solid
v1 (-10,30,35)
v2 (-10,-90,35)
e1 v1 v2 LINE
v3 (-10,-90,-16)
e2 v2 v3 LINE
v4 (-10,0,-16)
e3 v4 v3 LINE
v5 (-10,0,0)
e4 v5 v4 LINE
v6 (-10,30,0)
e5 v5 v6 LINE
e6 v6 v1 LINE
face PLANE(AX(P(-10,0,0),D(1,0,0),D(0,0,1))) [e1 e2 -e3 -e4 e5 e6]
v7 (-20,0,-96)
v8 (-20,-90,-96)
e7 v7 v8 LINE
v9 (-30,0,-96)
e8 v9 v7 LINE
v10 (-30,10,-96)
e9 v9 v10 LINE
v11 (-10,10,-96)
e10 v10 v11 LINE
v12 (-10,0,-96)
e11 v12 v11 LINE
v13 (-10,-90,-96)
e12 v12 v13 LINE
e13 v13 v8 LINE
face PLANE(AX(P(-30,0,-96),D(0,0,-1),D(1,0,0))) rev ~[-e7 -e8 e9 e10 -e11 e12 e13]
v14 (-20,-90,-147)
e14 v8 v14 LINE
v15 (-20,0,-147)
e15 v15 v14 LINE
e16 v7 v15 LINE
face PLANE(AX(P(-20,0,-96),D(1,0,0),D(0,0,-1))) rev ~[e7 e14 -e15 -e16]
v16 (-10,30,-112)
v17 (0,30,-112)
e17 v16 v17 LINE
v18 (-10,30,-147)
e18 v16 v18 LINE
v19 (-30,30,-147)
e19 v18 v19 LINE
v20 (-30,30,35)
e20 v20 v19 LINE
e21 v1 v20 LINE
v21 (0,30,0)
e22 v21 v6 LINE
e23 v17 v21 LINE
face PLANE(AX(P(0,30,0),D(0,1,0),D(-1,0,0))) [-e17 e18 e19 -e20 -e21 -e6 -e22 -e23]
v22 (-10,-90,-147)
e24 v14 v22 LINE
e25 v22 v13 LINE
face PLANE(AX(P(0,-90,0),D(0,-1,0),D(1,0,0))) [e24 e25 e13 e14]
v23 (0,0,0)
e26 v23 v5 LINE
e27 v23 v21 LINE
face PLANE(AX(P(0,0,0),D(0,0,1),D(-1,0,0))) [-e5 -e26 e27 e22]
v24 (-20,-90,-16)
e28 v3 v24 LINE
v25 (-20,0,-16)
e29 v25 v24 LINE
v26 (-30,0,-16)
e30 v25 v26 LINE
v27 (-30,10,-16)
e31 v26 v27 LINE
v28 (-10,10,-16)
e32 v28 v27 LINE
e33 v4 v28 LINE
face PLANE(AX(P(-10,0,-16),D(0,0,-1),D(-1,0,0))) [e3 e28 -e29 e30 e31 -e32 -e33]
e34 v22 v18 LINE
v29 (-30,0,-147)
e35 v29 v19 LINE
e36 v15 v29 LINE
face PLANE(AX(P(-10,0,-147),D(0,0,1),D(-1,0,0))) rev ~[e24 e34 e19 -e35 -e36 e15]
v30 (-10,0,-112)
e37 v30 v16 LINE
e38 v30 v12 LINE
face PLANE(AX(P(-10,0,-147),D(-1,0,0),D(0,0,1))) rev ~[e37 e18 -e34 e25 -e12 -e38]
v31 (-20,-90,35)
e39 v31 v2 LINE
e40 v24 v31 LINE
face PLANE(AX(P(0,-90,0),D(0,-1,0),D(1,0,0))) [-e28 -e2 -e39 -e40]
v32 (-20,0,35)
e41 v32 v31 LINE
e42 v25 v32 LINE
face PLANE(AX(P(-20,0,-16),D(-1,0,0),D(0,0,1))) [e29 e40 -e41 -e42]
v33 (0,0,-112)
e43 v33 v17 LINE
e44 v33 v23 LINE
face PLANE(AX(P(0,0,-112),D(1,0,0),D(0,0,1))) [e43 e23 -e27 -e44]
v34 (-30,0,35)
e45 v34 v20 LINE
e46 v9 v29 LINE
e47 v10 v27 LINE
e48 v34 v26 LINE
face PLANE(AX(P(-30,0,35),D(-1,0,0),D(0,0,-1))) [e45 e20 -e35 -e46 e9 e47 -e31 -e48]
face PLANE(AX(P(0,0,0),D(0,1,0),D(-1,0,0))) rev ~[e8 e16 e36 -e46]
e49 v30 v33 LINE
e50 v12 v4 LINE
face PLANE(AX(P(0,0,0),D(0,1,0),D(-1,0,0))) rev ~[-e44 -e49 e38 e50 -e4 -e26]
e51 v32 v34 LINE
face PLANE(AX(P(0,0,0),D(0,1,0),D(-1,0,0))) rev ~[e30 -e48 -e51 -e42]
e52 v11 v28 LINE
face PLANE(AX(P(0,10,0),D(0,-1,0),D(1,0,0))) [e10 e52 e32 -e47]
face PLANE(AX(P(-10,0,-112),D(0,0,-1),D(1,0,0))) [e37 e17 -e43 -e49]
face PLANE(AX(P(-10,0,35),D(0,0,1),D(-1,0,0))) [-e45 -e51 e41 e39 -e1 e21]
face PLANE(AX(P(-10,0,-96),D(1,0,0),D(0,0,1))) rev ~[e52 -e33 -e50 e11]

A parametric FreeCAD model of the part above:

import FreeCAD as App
import Part
import Sketcher

V = App.Vector
Q = App.Units.Quantity

doc = App.newDocument("Part")
params = doc.addObject("Spreadsheet::Sheet", "Params")
for row, (alias, value) in enumerate([
    ("sketch1_width", "10 mm"),
    ("sketch1_width2", "20 mm"),
    ("sketch1_height", "112 mm"),
    ("sketch1_height2", "35 mm"),
    ("pad1_length", "30 mm"),
    ("sketch2_width", "20 mm"),
    ("sketch2_height", "80 mm"),
    ("pocket1_length", "10 mm"),
    ("sketch3_width", "10 mm"),
    ("sketch3_height", "51 mm"),
    ("pad2_length", "90 mm"),
], start=1):
    params.set(f"A{row}", alias)
    params.set(f"B{row}", "=" + value)
    params.setAlias(f"B{row}", alias)

body = doc.addObject("PartDesign::Body", "Body")

# Sketch on XZ plane
sketch1 = body.newObject("Sketcher::SketchObject", "Sketch")
sketch1.AttachmentSupport = (doc.getObject("XZ_Plane"), [""])
sketch1.MapMode = "FlatFace"
sketch1.addGeometry([
    Part.LineSegment(V(-10, 0, 0), V(0, 0, 0)),  # 0
    Part.LineSegment(V(0, 0, 0), V(0, -112, 0)),  # 1
    Part.LineSegment(V(0, -112, 0), V(-10, -112, 0)),  # 2
    Part.LineSegment(V(-10, -112, 0), V(-10, -147, 0)),  # 3
    Part.LineSegment(V(-10, -147, 0), V(-30, -147, 0)),  # 4
    Part.LineSegment(V(-30, -147, 0), V(-30, 35, 0)),  # 5
    Part.LineSegment(V(-30, 35, 0), V(-10, 35, 0)),  # 6
    Part.LineSegment(V(-10, 35, 0), V(-10, 0, 0)),  # 7
], False)
sketch1.addConstraint([
    Sketcher.Constraint("Coincident", 0, 2, 1, 1),
    Sketcher.Constraint("Coincident", 1, 2, 2, 1),
    Sketcher.Constraint("Coincident", 2, 2, 3, 1),
    Sketcher.Constraint("Coincident", 3, 2, 4, 1),
    Sketcher.Constraint("Coincident", 4, 2, 5, 1),
    Sketcher.Constraint("Coincident", 5, 2, 6, 1),
    Sketcher.Constraint("Coincident", 6, 2, 7, 1),
    Sketcher.Constraint("Coincident", 7, 2, 0, 1),
    Sketcher.Constraint("Horizontal", 0),
    Sketcher.Constraint("Vertical", 1),
    Sketcher.Constraint("Horizontal", 2),
    Sketcher.Constraint("Vertical", 3),
    Sketcher.Constraint("Horizontal", 4),
    Sketcher.Constraint("Vertical", 5),
    Sketcher.Constraint("Horizontal", 6),
    Sketcher.Constraint("Vertical", 7),
    Sketcher.Constraint("Coincident", 0, 2, -1, 1),
    Sketcher.Constraint("Vertical", 3, 2, 6, 2),
    Sketcher.Constraint("Equal", 3, 7),
    Sketcher.Constraint("DistanceX", 0, 1, 0, 2, Q("10 mm")),
    Sketcher.Constraint("DistanceX", 4, 2, 4, 1, Q("20 mm")),
    Sketcher.Constraint("DistanceY", 1, 2, 1, 1, Q("112 mm")),
    Sketcher.Constraint("DistanceY", 3, 2, 3, 1, Q("35 mm")),
])
sketch1.setExpression("Constraints[19]", "Params.sketch1_width")
sketch1.setExpression("Constraints[20]", "Params.sketch1_width2")
sketch1.setExpression("Constraints[21]", "Params.sketch1_height")
sketch1.setExpression("Constraints[22]", "Params.sketch1_height2")
pad1 = body.newObject("PartDesign::Pad", "Pad")
pad1.Profile = sketch1
pad1.setExpression("Length", "Params.pad1_length")
pad1.Reversed = True

# Sketch on XZ plane
sketch2 = body.newObject("Sketcher::SketchObject", "Sketch001")
sketch2.AttachmentSupport = (doc.getObject("XZ_Plane"), [""])
sketch2.MapMode = "FlatFace"
sketch2.addGeometry([
    Part.LineSegment(V(-30, -16, 0), V(-30, -96, 0)),
    Part.LineSegment(V(-30, -96, 0), V(-10, -96, 0)),
    Part.LineSegment(V(-10, -96, 0), V(-10, -16, 0)),
    Part.LineSegment(V(-10, -16, 0), V(-30, -16, 0)),
], False)
sketch2.addConstraint([
    Sketcher.Constraint("Coincident", 0, 2, 1, 1),
    Sketcher.Constraint("Coincident", 1, 2, 2, 1),
    Sketcher.Constraint("Coincident", 2, 2, 3, 1),
    Sketcher.Constraint("Coincident", 3, 2, 0, 1),
    Sketcher.Constraint("Vertical", 0),
    Sketcher.Constraint("Horizontal", 1),
    Sketcher.Constraint("Vertical", 2),
    Sketcher.Constraint("Horizontal", 3),
    Sketcher.Constraint("DistanceX", 1, 1, 1, 2, Q("20 mm")),
    Sketcher.Constraint("DistanceY", 0, 2, 0, 1, Q("80 mm")),
    Sketcher.Constraint("DistanceY", 2, 2, -1, 1, Q("16 mm")),
    Sketcher.Constraint("DistanceX", 0, 2, -1, 1, Q("30 mm")),
])
sketch2.setExpression("Constraints[8]", "Params.sketch2_width")
sketch2.setExpression("Constraints[9]", "Params.sketch2_height")
pocket1 = body.newObject("PartDesign::Pocket", "Pocket")
pocket1.Profile = sketch2
pocket1.setExpression("Length", "Params.pocket1_length")

# Sketch on XZ plane
sketch3 = body.newObject("Sketcher::SketchObject", "Sketch002")
sketch3.AttachmentSupport = (doc.getObject("XZ_Plane"), [""])
sketch3.MapMode = "FlatFace"
sketch3.addGeometry([
    Part.LineSegment(V(-10, -147, 0), V(-10, -96, 0)),  # 0
    Part.LineSegment(V(-10, -96, 0), V(-20, -96, 0)),  # 1
    Part.LineSegment(V(-20, -96, 0), V(-20, -147, 0)),  # 2
    Part.LineSegment(V(-20, -147, 0), V(-10, -147, 0)),  # 3
    Part.LineSegment(V(-20, -16, 0), V(-10, -16, 0)),  # 4
    Part.LineSegment(V(-10, -16, 0), V(-10, 35, 0)),  # 5
    Part.LineSegment(V(-10, 35, 0), V(-20, 35, 0)),  # 6
    Part.LineSegment(V(-20, 35, 0), V(-20, -16, 0)),  # 7
], False)
sketch3.addConstraint([
    Sketcher.Constraint("Coincident", 0, 2, 1, 1),
    Sketcher.Constraint("Coincident", 1, 2, 2, 1),
    Sketcher.Constraint("Coincident", 2, 2, 3, 1),
    Sketcher.Constraint("Coincident", 3, 2, 0, 1),
    Sketcher.Constraint("Coincident", 4, 2, 5, 1),
    Sketcher.Constraint("Coincident", 5, 2, 6, 1),
    Sketcher.Constraint("Coincident", 6, 2, 7, 1),
    Sketcher.Constraint("Coincident", 7, 2, 4, 1),
    Sketcher.Constraint("Vertical", 0),
    Sketcher.Constraint("Horizontal", 1),
    Sketcher.Constraint("Vertical", 2),
    Sketcher.Constraint("Horizontal", 3),
    Sketcher.Constraint("Horizontal", 4),
    Sketcher.Constraint("Vertical", 5),
    Sketcher.Constraint("Horizontal", 6),
    Sketcher.Constraint("Vertical", 7),
    Sketcher.Constraint("Vertical", 3, 2, 4, 2),
    Sketcher.Constraint("Vertical", 2, 2, 6, 2),
    Sketcher.Constraint("Equal", 2, 5),
    Sketcher.Constraint("DistanceX", 1, 2, 1, 1, Q("10 mm")),
    Sketcher.Constraint("DistanceY", 0, 1, 0, 2, Q("51 mm")),
    Sketcher.Constraint("DistanceX", 0, 2, -1, 1, Q("10 mm")),
    Sketcher.Constraint("DistanceY", 0, 2, -1, 1, Q("96 mm")),
    Sketcher.Constraint("DistanceY", 4, 2, -1, 1, Q("16 mm")),
])
sketch3.setExpression("Constraints[19]", "Params.sketch3_width")
sketch3.setExpression("Constraints[20]", "Params.sketch3_height")
pad2 = body.newObject("PartDesign::Pad", "Pad001")
pad2.Profile = sketch3
pad2.setExpression("Length", "Params.pad2_length")

doc.recompute()
